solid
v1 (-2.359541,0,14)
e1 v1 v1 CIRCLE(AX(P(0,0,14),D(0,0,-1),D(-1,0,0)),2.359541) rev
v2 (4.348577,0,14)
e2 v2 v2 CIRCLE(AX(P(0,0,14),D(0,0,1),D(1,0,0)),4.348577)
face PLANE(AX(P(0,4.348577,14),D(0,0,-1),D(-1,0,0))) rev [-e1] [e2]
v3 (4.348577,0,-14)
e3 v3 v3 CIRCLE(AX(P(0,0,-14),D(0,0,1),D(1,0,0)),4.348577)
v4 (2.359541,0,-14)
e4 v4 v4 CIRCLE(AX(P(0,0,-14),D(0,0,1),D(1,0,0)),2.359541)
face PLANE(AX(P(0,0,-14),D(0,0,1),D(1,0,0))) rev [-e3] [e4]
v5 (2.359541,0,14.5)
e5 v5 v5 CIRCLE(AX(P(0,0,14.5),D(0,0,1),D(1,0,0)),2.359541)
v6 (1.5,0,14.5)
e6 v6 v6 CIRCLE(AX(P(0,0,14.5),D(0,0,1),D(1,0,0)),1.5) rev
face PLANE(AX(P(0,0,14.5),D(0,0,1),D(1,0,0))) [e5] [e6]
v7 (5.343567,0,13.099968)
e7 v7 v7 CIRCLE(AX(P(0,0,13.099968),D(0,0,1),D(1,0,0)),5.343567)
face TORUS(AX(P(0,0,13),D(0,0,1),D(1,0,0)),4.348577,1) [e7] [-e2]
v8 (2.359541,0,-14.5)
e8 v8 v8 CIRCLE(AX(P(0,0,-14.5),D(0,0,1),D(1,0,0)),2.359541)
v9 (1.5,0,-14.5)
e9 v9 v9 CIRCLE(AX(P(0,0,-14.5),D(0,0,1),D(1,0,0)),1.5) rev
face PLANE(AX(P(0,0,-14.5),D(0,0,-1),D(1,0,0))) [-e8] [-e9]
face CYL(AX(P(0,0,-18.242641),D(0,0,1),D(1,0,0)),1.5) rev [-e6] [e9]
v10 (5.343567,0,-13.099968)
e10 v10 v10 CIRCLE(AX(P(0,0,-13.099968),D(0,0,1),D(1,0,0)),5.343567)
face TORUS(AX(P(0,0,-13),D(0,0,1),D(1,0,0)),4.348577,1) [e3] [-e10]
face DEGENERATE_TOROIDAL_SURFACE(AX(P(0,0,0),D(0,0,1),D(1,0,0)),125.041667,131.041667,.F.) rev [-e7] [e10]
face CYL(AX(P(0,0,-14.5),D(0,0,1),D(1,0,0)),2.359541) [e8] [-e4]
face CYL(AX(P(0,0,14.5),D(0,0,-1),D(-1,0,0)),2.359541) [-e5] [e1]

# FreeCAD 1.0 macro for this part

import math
import FreeCAD as App
import Part
import Sketcher

V = App.Vector

doc = App.newDocument("Part")
body = doc.addObject("PartDesign::Body", "Body")

sketch1 = body.newObject("Sketcher::SketchObject", "Sketch")
sketch1.AttachmentSupport = (doc.getObject("YZ_Plane"), [""])
sketch1.MapMode = "FlatFace"
sketch1.addGeometry([
    Part.LineSegment(V(4.3, 14, 0), V(0, 14, 0)),
    Part.LineSegment(V(0, 14, 0), V(0, -14, 0)),
    Part.LineSegment(V(0, -14, 0), V(4.3, -14, 0)),
    Part.ArcOfCircle(Part.Circle(V(4.3, -13, 0), V(0, 0, 1), 1), math.radians(-90), math.radians(-6)),
    Part.ArcOfCircle(Part.Circle(V(-125, 0, 0), V(0, 0, 1), 131), math.radians(-5.74), math.radians(5.74)),
    Part.ArcOfCircle(Part.Circle(V(4.3, 13, 0), V(0, 0, 1), 1), math.radians(6), math.radians(90)),
], False)
sketch1.addConstraint([
    Sketcher.Constraint("Coincident", 0, 2, 1, 1),
    Sketcher.Constraint("Coincident", 1, 2, 2, 1),
    Sketcher.Constraint("Tangent", 2, 2, 3, 1),
    Sketcher.Constraint("Tangent", 3, 2, 4, 1),
    Sketcher.Constraint("Tangent", 4, 2, 5, 1),
    Sketcher.Constraint("Tangent", 5, 2, 0, 1),
    Sketcher.Constraint("Horizontal", 0),
    Sketcher.Constraint("Vertical", 1),
    Sketcher.Constraint("Horizontal", 2),
    Sketcher.Constraint("Equal", 3, 5),
    Sketcher.Constraint("Symmetric", 0, 2, 1, 2, -1, 1),
    Sketcher.Constraint("PointOnObject", 4, 3, -1),
    Sketcher.Constraint("Radius", 3, 1.0),
    Sketcher.Constraint("DistanceY", 1, 2, 1, 1, 28.0),
    Sketcher.Constraint("Radius", 4, 131.041667),
    Sketcher.Constraint("DistanceX", 0, 2, 0, 1, 4.348577),
])
revolution = body.newObject("PartDesign::Revolution", "Revolution")
revolution.Profile = sketch1
revolution.ReferenceAxis = (sketch1, ["V_Axis"])
revolution.Angle = 360

sketch2 = body.newObject("Sketcher::SketchObject", "Sketch001")
sketch2.AttachmentSupport = (doc.getObject("XY_Plane"), [""])
sketch2.MapMode = "FlatFace"
sketch2.AttachmentOffset = App.Placement(V(0, 0, 14), App.Rotation())
sketch2.addGeometry(Part.Circle(V(0, 0, 0), V(0, 0, 1), 1.5), False)
sketch2.addConstraint([
    Sketcher.Constraint("Coincident", 0, 3, -1, 1),
    Sketcher.Constraint("Diameter", 0, 3.0),
])
pocket1 = body.newObject("PartDesign::Pocket", "Pocket")
pocket1.Profile = sketch2
pocket1.Length = 28

sketch3 = body.newObject("Sketcher::SketchObject", "Sketch002")
sketch3.AttachmentSupport = (doc.getObject("XY_Plane"), [""])
sketch3.MapMode = "FlatFace"
sketch3.AttachmentOffset = App.Placement(V(0, 0, 14), App.Rotation())
sketch3.addGeometry([
    Part.Circle(V(0, 0, 0), V(0, 0, 1), 3.8),
    Part.Circle(V(0, 0, 0), V(0, 0, 1), 1.5),
], False)
sketch3.addConstraint([
    Sketcher.Constraint("Coincident", 0, 3, -1, 1),
    Sketcher.Constraint("Coincident", 1, 3, -1, 1),
    Sketcher.Constraint("Diameter", 1, 3.0),
    Sketcher.Constraint("Diameter", 0, 7.5),
])
pocket2 = body.newObject("PartDesign::Pocket", "Pocket001")
pocket2.Profile = sketch3
pocket2.Length = 1.5
doc.recompute()

mirrored = body.newObject("PartDesign::Mirrored", "Mirrored")
mirrored.Originals = [pocket2]
mirrored.MirrorPlane = (doc.getObject("XY_Plane"), [""])
body.Tip = mirrored

sketch4 = body.newObject("Sketcher::SketchObject", "Sketch003")
sketch4.AttachmentSupport = (doc.getObject("XY_Plane"), [""])
sketch4.MapMode = "FlatFace"
sketch4.AttachmentOffset = App.Placement(V(0, 0, 14), App.Rotation())
sketch4.addGeometry([
    Part.Circle(V(0, 0, 0), V(0, 0, 1), 3.8),
    Part.Circle(V(0, 0, 0), V(0, 0, 1), 1.5),
], False)
sketch4.addConstraint([
    Sketcher.Constraint("Coincident", 0, 3, -1, 1),
    Sketcher.Constraint("Coincident", 1, 3, -1, 1),
    Sketcher.Constraint("Diameter", 1, 3.0),
    Sketcher.Constraint("Diameter", 0, 7.5),
])
pad1 = body.newObject("PartDesign::Pad", "Pad")
pad1.Profile = sketch4
pad1.Length = 1.5
pad1.Reversed = True

sketch5 = body.newObject("Sketcher::SketchObject", "Sketch004")
sketch5.AttachmentSupport = (doc.getObject("XY_Plane"), [""])
sketch5.MapMode = "FlatFace"
sketch5.AttachmentOffset = App.Placement(V(0, 0, 14.5), App.Rotation())
sketch5.addGeometry([
    Part.Circle(V(0, 0, 0), V(0, 0, 1), 2.4),
    Part.Circle(V(0, 0, 0), V(0, 0, 1), 1.5),
], False)
sketch5.addConstraint([
    Sketcher.Constraint("Coincident", 0, 3, -1, 1),
    Sketcher.Constraint("Coincident", 1, 3, -1, 1),
    Sketcher.Constraint("Diameter", 1, 3.0),
    Sketcher.Constraint("Diameter", 0, 4.719082),
])
pad2 = body.newObject("PartDesign::Pad", "Pad001")
pad2.Profile = sketch5
pad2.Length = 0.5
pad2.Reversed = True
doc.recompute()

mirrored2 = body.newObject("PartDesign::Mirrored", "Mirrored001")
mirrored2.Originals = [pad1, pad2]
mirrored2.MirrorPlane = (doc.getObject("XY_Plane"), [""])
body.Tip = mirrored2

doc.recompute()
